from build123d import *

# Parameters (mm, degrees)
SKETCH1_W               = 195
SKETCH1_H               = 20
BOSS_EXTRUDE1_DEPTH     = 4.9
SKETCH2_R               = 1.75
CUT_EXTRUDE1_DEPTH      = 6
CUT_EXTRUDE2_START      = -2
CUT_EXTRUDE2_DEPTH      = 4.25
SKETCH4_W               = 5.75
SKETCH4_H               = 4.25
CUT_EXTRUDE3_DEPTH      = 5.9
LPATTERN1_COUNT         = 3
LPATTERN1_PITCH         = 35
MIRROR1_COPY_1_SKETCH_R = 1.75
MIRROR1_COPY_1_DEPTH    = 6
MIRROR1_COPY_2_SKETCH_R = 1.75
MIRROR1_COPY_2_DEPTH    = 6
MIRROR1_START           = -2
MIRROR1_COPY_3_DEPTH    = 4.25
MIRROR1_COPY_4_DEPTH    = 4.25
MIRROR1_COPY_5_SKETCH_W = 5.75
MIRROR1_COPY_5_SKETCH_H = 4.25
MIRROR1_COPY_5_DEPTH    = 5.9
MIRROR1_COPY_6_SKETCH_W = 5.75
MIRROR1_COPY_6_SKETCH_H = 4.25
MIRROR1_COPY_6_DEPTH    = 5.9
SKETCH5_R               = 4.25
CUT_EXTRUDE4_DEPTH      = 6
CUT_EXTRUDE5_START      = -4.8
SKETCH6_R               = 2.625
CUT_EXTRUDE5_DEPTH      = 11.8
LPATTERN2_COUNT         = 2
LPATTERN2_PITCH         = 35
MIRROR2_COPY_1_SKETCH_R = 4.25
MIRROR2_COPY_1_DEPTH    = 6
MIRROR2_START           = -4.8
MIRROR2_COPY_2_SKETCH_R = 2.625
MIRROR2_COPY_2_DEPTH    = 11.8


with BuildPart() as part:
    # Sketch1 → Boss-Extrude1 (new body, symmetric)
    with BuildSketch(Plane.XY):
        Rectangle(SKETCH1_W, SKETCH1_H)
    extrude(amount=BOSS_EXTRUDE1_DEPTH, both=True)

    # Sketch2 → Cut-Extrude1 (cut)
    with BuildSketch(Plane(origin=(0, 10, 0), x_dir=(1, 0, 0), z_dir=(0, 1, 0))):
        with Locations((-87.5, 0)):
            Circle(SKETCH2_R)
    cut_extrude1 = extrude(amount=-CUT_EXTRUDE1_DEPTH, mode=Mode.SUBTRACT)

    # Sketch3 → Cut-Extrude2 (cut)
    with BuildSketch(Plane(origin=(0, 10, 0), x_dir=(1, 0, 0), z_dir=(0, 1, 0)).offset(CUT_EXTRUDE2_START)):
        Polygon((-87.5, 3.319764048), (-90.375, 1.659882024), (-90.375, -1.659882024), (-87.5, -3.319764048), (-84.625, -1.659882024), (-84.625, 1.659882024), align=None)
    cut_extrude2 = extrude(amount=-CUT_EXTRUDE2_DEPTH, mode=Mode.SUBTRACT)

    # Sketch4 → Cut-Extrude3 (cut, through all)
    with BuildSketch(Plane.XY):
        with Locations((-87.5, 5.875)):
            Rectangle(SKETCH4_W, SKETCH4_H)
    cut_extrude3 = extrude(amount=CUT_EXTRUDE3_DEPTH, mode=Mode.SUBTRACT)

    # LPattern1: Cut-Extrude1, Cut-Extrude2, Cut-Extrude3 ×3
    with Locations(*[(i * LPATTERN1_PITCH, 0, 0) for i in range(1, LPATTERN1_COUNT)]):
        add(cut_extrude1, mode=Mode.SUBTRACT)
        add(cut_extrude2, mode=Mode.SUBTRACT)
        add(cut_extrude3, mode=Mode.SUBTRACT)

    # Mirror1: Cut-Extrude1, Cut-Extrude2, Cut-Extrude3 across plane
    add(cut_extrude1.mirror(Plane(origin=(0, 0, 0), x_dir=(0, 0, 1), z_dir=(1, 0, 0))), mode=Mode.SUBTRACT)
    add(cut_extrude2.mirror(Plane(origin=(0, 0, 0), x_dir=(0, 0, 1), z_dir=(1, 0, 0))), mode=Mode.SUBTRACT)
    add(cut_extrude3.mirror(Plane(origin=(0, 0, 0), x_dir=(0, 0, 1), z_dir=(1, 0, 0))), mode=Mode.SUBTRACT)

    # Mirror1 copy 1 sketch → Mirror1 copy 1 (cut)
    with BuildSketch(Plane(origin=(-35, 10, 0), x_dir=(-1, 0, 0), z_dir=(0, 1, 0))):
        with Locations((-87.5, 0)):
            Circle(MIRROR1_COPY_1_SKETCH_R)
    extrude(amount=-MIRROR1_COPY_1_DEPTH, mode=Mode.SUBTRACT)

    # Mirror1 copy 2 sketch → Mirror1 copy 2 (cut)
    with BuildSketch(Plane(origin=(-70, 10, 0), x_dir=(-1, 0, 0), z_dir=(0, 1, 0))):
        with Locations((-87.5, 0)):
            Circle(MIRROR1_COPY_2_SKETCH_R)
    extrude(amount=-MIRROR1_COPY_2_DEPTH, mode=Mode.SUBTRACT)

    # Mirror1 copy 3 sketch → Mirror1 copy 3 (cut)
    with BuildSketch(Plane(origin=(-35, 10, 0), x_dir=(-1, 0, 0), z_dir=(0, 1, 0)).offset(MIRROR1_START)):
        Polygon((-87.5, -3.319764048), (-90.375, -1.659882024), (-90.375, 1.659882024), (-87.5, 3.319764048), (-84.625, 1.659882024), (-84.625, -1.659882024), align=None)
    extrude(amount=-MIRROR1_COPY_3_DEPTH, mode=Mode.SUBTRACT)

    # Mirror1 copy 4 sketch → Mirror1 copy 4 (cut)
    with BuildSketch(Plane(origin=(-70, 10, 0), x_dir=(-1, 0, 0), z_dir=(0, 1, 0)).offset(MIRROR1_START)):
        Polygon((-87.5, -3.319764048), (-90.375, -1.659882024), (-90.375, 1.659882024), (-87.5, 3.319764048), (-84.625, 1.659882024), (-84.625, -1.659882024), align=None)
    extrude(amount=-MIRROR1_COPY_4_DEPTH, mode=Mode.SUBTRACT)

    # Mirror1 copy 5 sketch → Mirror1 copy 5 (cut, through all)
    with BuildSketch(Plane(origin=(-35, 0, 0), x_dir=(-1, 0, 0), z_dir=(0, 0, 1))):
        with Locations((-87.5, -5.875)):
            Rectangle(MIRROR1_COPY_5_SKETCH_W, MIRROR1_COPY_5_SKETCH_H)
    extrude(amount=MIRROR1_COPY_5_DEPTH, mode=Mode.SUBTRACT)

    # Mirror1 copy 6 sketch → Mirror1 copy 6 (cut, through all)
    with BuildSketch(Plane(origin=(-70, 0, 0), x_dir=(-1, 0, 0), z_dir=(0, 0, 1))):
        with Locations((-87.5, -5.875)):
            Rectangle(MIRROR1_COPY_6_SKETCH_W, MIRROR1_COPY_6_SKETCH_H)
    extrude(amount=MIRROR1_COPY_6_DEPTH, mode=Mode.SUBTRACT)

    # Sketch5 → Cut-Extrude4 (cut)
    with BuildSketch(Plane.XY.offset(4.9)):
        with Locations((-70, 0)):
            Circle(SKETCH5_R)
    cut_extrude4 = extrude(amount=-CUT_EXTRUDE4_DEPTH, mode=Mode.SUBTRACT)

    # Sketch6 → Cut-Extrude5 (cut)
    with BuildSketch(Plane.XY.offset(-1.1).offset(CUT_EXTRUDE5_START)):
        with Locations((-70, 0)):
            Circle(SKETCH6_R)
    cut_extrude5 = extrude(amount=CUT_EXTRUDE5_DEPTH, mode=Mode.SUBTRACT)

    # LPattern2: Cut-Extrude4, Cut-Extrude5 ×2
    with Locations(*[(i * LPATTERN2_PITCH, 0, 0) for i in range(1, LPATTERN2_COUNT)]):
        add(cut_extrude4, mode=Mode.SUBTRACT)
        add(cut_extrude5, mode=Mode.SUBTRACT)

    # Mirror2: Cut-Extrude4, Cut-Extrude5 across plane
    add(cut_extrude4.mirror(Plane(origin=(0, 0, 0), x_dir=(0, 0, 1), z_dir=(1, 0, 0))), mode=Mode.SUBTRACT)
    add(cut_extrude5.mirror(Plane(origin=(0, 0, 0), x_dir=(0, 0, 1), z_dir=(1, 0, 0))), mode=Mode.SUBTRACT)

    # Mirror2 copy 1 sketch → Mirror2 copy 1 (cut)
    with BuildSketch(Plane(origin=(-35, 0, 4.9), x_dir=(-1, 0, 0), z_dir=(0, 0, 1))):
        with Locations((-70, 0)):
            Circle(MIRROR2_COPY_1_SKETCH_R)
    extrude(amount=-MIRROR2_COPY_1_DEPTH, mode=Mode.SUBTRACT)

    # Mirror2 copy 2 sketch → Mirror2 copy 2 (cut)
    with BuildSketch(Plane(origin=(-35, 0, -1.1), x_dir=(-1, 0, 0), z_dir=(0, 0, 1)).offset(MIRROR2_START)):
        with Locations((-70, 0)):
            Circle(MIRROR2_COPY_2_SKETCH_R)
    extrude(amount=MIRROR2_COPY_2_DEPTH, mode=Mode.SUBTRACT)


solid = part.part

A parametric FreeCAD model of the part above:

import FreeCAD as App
import Part
import Sketcher

V = App.Vector
Q = App.Units.Quantity


def add_polygon(sketch, points):
    """Adds a closed chain of lines whose ends are joined by coincident constraints."""
    first, n = sketch.GeometryCount, len(points)
    for a, b in zip(points, points[1:] + points[:1]):
        sketch.addGeometry(Part.LineSegment(App.Vector(*a, 0), App.Vector(*b, 0)), False)
    for i in range(n):
        sketch.addConstraint(Sketcher.Constraint("Coincident", first + i, 2, first + (i + 1) % n, 1))

doc = App.newDocument("Part")
body = doc.addObject("PartDesign::Body", "Body")

sketch1 = body.newObject("Sketcher::SketchObject", "Sketch")
sketch1.AttachmentSupport = (doc.getObject("XY_Plane"), [""])
sketch1.MapMode = "FlatFace"
add_polygon(sketch1, [(-98, 10), (-98, -10), (98, -10), (98, 10)])
sketch1.addConstraint(Sketcher.Constraint("Vertical", 0))
sketch1.addConstraint(Sketcher.Constraint("Horizontal", 1))
sketch1.addConstraint(Sketcher.Constraint("Vertical", 2))
sketch1.addConstraint(Sketcher.Constraint("Horizontal", 3))
sketch1.addConstraint(Sketcher.Constraint("Symmetric", 0, 2, 2, 2, -1, 1))
sketch1.addConstraint(Sketcher.Constraint("DistanceX", 1, 1, 1, 2, Q("195 mm")))
sketch1.addConstraint(Sketcher.Constraint("DistanceY", 0, 2, 0, 1, Q("20 mm")))
pad1 = body.newObject("PartDesign::Pad", "Pad")
pad1.Profile = sketch1
pad1.Length = 9.8
pad1.Midplane = True

sketch2 = body.newObject("Sketcher::SketchObject", "Sketch001")
sketch2.AttachmentSupport = (doc.getObject("XZ_Plane"), [""])
sketch2.MapMode = "FlatFace"
sketch2.AttachmentOffset = App.Placement(V(0, 0, -10), App.Rotation())
sketch2.addGeometry(Part.Circle(V(-87.5, 0, 0), V(0, 0, 1), 1.8), False)
sketch2.addConstraint(Sketcher.Constraint("PointOnObject", 0, 3, -1))
sketch2.addConstraint(Sketcher.Constraint("Diameter", 0, Q("3.5 mm")))
sketch2.addConstraint(Sketcher.Constraint("DistanceX", 0, 3, -1, 1, Q("87.5 mm")))
pocket1 = body.newObject("PartDesign::Pocket", "Pocket")
pocket1.Profile = sketch2
pocket1.Length = 6
pocket1.Reversed = True

sketch3 = body.newObject("Sketcher::SketchObject", "Sketch002")
sketch3.AttachmentSupport = (doc.getObject("XZ_Plane"), [""])
sketch3.MapMode = "FlatFace"
sketch3.AttachmentOffset = App.Placement(V(0, 0, -8), App.Rotation())
add_polygon(sketch3, [(-87.5, -3.3), (-90.4, -1.7), (-90.4, 1.7), (-87.5, 3.3), (-84.6, 1.7), (-84.6, -1.7)])
sketch3.addConstraint(Sketcher.Constraint("Vertical", 1))
sketch3.addConstraint(Sketcher.Constraint("Vertical", 4))
sketch3.addConstraint(Sketcher.Constraint("Symmetric", 2, 2, 5, 2, -1))
sketch3.addConstraint(Sketcher.Constraint("Parallel", 0, 3))
sketch3.addConstraint(Sketcher.Constraint("Parallel", 2, 5))
sketch3.addConstraint(Sketcher.Constraint("Horizontal", 1, 2, 3, 2))
sketch3.addConstraint(Sketcher.Constraint("Horizontal", 0, 2, 4, 2))
sketch3.addConstraint(Sketcher.Constraint("Angle", 0, Q("150 deg")))
sketch3.addConstraint(Sketcher.Constraint("DistanceX", 2, 2, -1, 1, Q("87.5 mm")))
sketch3.addConstraint(Sketcher.Constraint("DistanceX", 1, 2, 3, 2, Q("5.75 mm")))
sketch3.addConstraint(Sketcher.Constraint("DistanceY", 1, 1, 1, 2, Q("3.319764 mm")))
pocket2 = body.newObject("PartDesign::Pocket", "Pocket001")
pocket2.Profile = sketch3
pocket2.Length = 4.25
pocket2.Reversed = True

sketch4 = body.newObject("Sketcher::SketchObject", "Sketch003")
sketch4.AttachmentSupport = (doc.getObject("XY_Plane"), [""])
sketch4.MapMode = "FlatFace"
add_polygon(sketch4, [(-90.4, 8), (-90.4, 3.8), (-84.6, 3.8), (-84.6, 8)])
sketch4.addConstraint(Sketcher.Constraint("Vertical", 0))
sketch4.addConstraint(Sketcher.Constraint("Horizontal", 1))
sketch4.addConstraint(Sketcher.Constraint("Vertical", 2))
sketch4.addConstraint(Sketcher.Constraint("Horizontal", 3))
sketch4.addConstraint(Sketcher.Constraint("DistanceY", -1, 1, 2, 2, Q("8 mm")))
sketch4.addConstraint(Sketcher.Constraint("DistanceX", 1, 1, 1, 2, Q("5.75 mm")))
sketch4.addConstraint(Sketcher.Constraint("DistanceY", 0, 2, 0, 1, Q("4.25 mm")))
sketch4.addConstraint(Sketcher.Constraint("DistanceX", 0, 2, -1, 1, Q("90.375 mm")))
pocket3 = body.newObject("PartDesign::Pocket", "Pocket002")
pocket3.Profile = sketch4
pocket3.Type = "ThroughAll"
pocket3.Reversed = True
doc.recompute()

linearpattern = body.newObject("PartDesign::LinearPattern", "LinearPattern")
linearpattern.Originals = [pocket1, pocket2, pocket3]
linearpattern.Direction = (doc.getObject("X_Axis"), [""])
linearpattern.Mode = "offset"
linearpattern.Offset = 35
linearpattern.Occurrences = 3
body.Tip = linearpattern
doc.recompute()

mirrored = body.newObject("PartDesign::Mirrored", "Mirrored")
mirrored.Originals = [pocket1, pocket2, pocket3]
mirrored.MirrorPlane = (doc.getObject("YZ_Plane"), [""])
body.Tip = mirrored

sketch5 = body.newObject("Sketcher::SketchObject", "Sketch004")
sketch5.AttachmentSupport = (doc.getObject("XZ_Plane"), [""])
sketch5.MapMode = "FlatFace"
sketch5.AttachmentOffset = App.Placement(V(0, 0, -10), App.Rotation())
sketch5.addGeometry(Part.Circle(V(52.5, 0, 0), V(0, 0, 1), 1.8), False)
sketch5.addConstraint(Sketcher.Constraint("PointOnObject", 0, 3, -1))
sketch5.addConstraint(Sketcher.Constraint("Diameter", 0, Q("3.5 mm")))
sketch5.addConstraint(Sketcher.Constraint("DistanceX", -1, 1, 0, 3, Q("52.5 mm")))
pocket4 = body.newObject("PartDesign::Pocket", "Pocket003")
pocket4.Profile = sketch5
pocket4.Length = 6
pocket4.Reversed = True

sketch6 = body.newObject("Sketcher::SketchObject", "Sketch005")
sketch6.AttachmentSupport = (doc.getObject("XZ_Plane"), [""])
sketch6.MapMode = "FlatFace"
sketch6.AttachmentOffset = App.Placement(V(0, 0, -10), App.Rotation())
sketch6.addGeometry(Part.Circle(V(17.5, 0, 0), V(0, 0, 1), 1.8), False)
sketch6.addConstraint(Sketcher.Constraint("PointOnObject", 0, 3, -1))
sketch6.addConstraint(Sketcher.Constraint("Diameter", 0, Q("3.5 mm")))
sketch6.addConstraint(Sketcher.Constraint("DistanceX", -1, 1, 0, 3, Q("17.5 mm")))
pocket5 = body.newObject("PartDesign::Pocket", "Pocket004")
pocket5.Profile = sketch6
pocket5.Length = 6
pocket5.Reversed = True

sketch7 = body.newObject("Sketcher::SketchObject", "Sketch006")
sketch7.AttachmentSupport = (doc.getObject("XZ_Plane"), [""])
sketch7.MapMode = "FlatFace"
sketch7.AttachmentOffset = App.Placement(V(0, 0, -8), App.Rotation())
add_polygon(sketch7, [(55.4, -1.7), (52.5, -3.3), (49.6, -1.7), (49.6, 1.7), (52.5, 3.3), (55.4, 1.7)])
sketch7.addConstraint(Sketcher.Constraint("Vertical", 2))
sketch7.addConstraint(Sketcher.Constraint("Vertical", 5))
sketch7.addConstraint(Sketcher.Constraint("Symmetric", 0, 2, 3, 2, -1))
sketch7.addConstraint(Sketcher.Constraint("Parallel", 0, 3))
sketch7.addConstraint(Sketcher.Constraint("Parallel", 1, 4))
sketch7.addConstraint(Sketcher.Constraint("Horizontal", 2, 2, 4, 2))
sketch7.addConstraint(Sketcher.Constraint("Horizontal", 1, 2, 5, 2))
sketch7.addConstraint(Sketcher.Constraint("Angle", 0, Q("-150 deg")))
sketch7.addConstraint(Sketcher.Constraint("DistanceX", -1, 1, 0, 2, Q("52.5 mm")))
sketch7.addConstraint(Sketcher.Constraint("DistanceX", 2, 2, 4, 2, Q("5.75 mm")))
sketch7.addConstraint(Sketcher.Constraint("DistanceY", 2, 1, 2, 2, Q("3.319764 mm")))
pocket6 = body.newObject("PartDesign::Pocket", "Pocket005")
pocket6.Profile = sketch7
pocket6.Length = 4.25
pocket6.Reversed = True

sketch8 = body.newObject("Sketcher::SketchObject", "Sketch007")
sketch8.AttachmentSupport = (doc.getObject("XZ_Plane"), [""])
sketch8.MapMode = "FlatFace"
sketch8.AttachmentOffset = App.Placement(V(0, 0, -8), App.Rotation())
add_polygon(sketch8, [(20.4, -1.7), (17.5, -3.3), (14.6, -1.7), (14.6, 1.7), (17.5, 3.3), (20.4, 1.7)])
sketch8.addConstraint(Sketcher.Constraint("Vertical", 2))
sketch8.addConstraint(Sketcher.Constraint("Vertical", 5))
sketch8.addConstraint(Sketcher.Constraint("Symmetric", 0, 2, 3, 2, -1))
sketch8.addConstraint(Sketcher.Constraint("Parallel", 0, 3))
sketch8.addConstraint(Sketcher.Constraint("Parallel", 1, 4))
sketch8.addConstraint(Sketcher.Constraint("Horizontal", 2, 2, 4, 2))
sketch8.addConstraint(Sketcher.Constraint("Horizontal", 1, 2, 5, 2))
sketch8.addConstraint(Sketcher.Constraint("Angle", 0, Q("-150 deg")))
sketch8.addConstraint(Sketcher.Constraint("DistanceX", -1, 1, 0, 2, Q("17.5 mm")))
sketch8.addConstraint(Sketcher.Constraint("DistanceX", 2, 2, 4, 2, Q("5.75 mm")))
sketch8.addConstraint(Sketcher.Constraint("DistanceY", 2, 1, 2, 2, Q("3.319764 mm")))
pocket7 = body.newObject("PartDesign::Pocket", "Pocket006")
pocket7.Profile = sketch8
pocket7.Length = 4.25
pocket7.Reversed = True

sketch9 = body.newObject("Sketcher::SketchObject", "Sketch008")
sketch9.AttachmentSupport = (doc.getObject("XY_Plane"), [""])
sketch9.MapMode = "FlatFace"
add_polygon(sketch9, [(55.4, 3.8), (55.4, 8), (49.6, 8), (49.6, 3.8)])
sketch9.addConstraint(Sketcher.Constraint("Vertical", 0))
sketch9.addConstraint(Sketcher.Constraint("Horizontal", 1))
sketch9.addConstraint(Sketcher.Constraint("Vertical", 2))
sketch9.addConstraint(Sketcher.Constraint("Horizontal", 3))
sketch9.addConstraint(Sketcher.Constraint("DistanceY", -1, 1, 0, 2, Q("8 mm")))
sketch9.addConstraint(Sketcher.Constraint("DistanceX", 1, 2, 1, 1, Q("5.75 mm")))
sketch9.addConstraint(Sketcher.Constraint("DistanceY", 0, 1, 0, 2, Q("4.25 mm")))
sketch9.addConstraint(Sketcher.Constraint("DistanceX", -1, 1, 0, 2, Q("55.375 mm")))
pocket8 = body.newObject("PartDesign::Pocket", "Pocket007")
pocket8.Profile = sketch9
pocket8.Type = "ThroughAll"
pocket8.Reversed = True

sketch10 = body.newObject("Sketcher::SketchObject", "Sketch009")
sketch10.AttachmentSupport = (doc.getObject("XY_Plane"), [""])
sketch10.MapMode = "FlatFace"
add_polygon(sketch10, [(20.4, 3.8), (20.4, 8), (14.6, 8), (14.6, 3.8)])
sketch10.addConstraint(Sketcher.Constraint("Vertical", 0))
sketch10.addConstraint(Sketcher.Constraint("Horizontal", 1))
sketch10.addConstraint(Sketcher.Constraint("Vertical", 2))
sketch10.addConstraint(Sketcher.Constraint("Horizontal", 3))
sketch10.addConstraint(Sketcher.Constraint("DistanceY", -1, 1, 0, 2, Q("8 mm")))
sketch10.addConstraint(Sketcher.Constraint("DistanceX", 1, 2, 1, 1, Q("5.75 mm")))
sketch10.addConstraint(Sketcher.Constraint("DistanceY", 0, 1, 0, 2, Q("4.25 mm")))
sketch10.addConstraint(Sketcher.Constraint("DistanceX", -1, 1, 0, 2, Q("20.375 mm")))
pocket9 = body.newObject("PartDesign::Pocket", "Pocket008")
pocket9.Profile = sketch10
pocket9.Type = "ThroughAll"
pocket9.Reversed = True

sketch11 = body.newObject("Sketcher::SketchObject", "Sketch010")
sketch11.AttachmentSupport = (doc.getObject("XY_Plane"), [""])
sketch11.MapMode = "FlatFace"
sketch11.AttachmentOffset = App.Placement(V(0, 0, 4.9), App.Rotation())
sketch11.addGeometry(Part.Circle(V(-70, 0, 0), V(0, 0, 1), 4.2), False)
sketch11.addConstraint(Sketcher.Constraint("PointOnObject", 0, 3, -1))
sketch11.addConstraint(Sketcher.Constraint("Diameter", 0, Q("8.5 mm")))
sketch11.addConstraint(Sketcher.Constraint("DistanceX", 0, 3, -1, 1, Q("70 mm")))
pocket10 = body.newObject("PartDesign::Pocket", "Pocket009")
pocket10.Profile = sketch11
pocket10.Length = 6

sketch12 = body.newObject("Sketcher::SketchObject", "Sketch011")
sketch12.AttachmentSupport = (doc.getObject("XY_Plane"), [""])
sketch12.MapMode = "FlatFace"
sketch12.AttachmentOffset = App.Placement(V(0, 0, -5.9), App.Rotation())
sketch12.addGeometry(Part.Circle(V(-70, 0, 0), V(0, 0, 1), 2.6), False)
sketch12.addConstraint(Sketcher.Constraint("PointOnObject", 0, 3, -1))
sketch12.addConstraint(Sketcher.Constraint("Diameter", 0, Q("5.25 mm")))
sketch12.addConstraint(Sketcher.Constraint("DistanceX", 0, 3, -1, 1, Q("70 mm")))
pocket11 = body.newObject("PartDesign::Pocket", "Pocket010")
pocket11.Profile = sketch12
pocket11.Length = 11.8
pocket11.Reversed = True
doc.recompute()

linearpattern2 = body.newObject("PartDesign::LinearPattern", "LinearPattern001")
linearpattern2.Originals = [pocket10, pocket11]
linearpattern2.Direction = (doc.getObject("X_Axis"), [""])
linearpattern2.Mode = "offset"
linearpattern2.Offset = 35
linearpattern2.Occurrences = 2
body.Tip = linearpattern2
doc.recompute()

mirrored2 = body.newObject("PartDesign::Mirrored", "Mirrored001")
mirrored2.Originals = [pocket10, pocket11]
mirrored2.MirrorPlane = (doc.getObject("YZ_Plane"), [""])
body.Tip = mirrored2

sketch13 = body.newObject("Sketcher::SketchObject", "Sketch012")
sketch13.AttachmentSupport = (doc.getObject("XY_Plane"), [""])
sketch13.MapMode = "FlatFace"
sketch13.AttachmentOffset = App.Placement(V(0, 0, 4.9), App.Rotation())
sketch13.addGeometry(Part.Circle(V(35, 0, 0), V(0, 0, 1), 4.2), False)
sketch13.addConstraint(Sketcher.Constraint("PointOnObject", 0, 3, -1))
sketch13.addConstraint(Sketcher.Constraint("Diameter", 0, Q("8.5 mm")))
sketch13.addConstraint(Sketcher.Constraint("DistanceX", -1, 1, 0, 3, Q("35 mm")))
pocket12 = body.newObject("PartDesign::Pocket", "Pocket011")
pocket12.Profile = sketch13
pocket12.Length = 6

sketch14 = body.newObject("Sketcher::SketchObject", "Sketch013")
sketch14.AttachmentSupport = (doc.getObject("XY_Plane"), [""])
sketch14.MapMode = "FlatFace"
sketch14.AttachmentOffset = App.Placement(V(0, 0, -5.9), App.Rotation())
sketch14.addGeometry(Part.Circle(V(35, 0, 0), V(0, 0, 1), 2.6), False)
sketch14.addConstraint(Sketcher.Constraint("PointOnObject", 0, 3, -1))
sketch14.addConstraint(Sketcher.Constraint("Diameter", 0, Q("5.25 mm")))
sketch14.addConstraint(Sketcher.Constraint("DistanceX", -1, 1, 0, 3, Q("35 mm")))
pocket13 = body.newObject("PartDesign::Pocket", "Pocket012")
pocket13.Profile = sketch14
pocket13.Length = 11.8
pocket13.Reversed = True

doc.recompute()
